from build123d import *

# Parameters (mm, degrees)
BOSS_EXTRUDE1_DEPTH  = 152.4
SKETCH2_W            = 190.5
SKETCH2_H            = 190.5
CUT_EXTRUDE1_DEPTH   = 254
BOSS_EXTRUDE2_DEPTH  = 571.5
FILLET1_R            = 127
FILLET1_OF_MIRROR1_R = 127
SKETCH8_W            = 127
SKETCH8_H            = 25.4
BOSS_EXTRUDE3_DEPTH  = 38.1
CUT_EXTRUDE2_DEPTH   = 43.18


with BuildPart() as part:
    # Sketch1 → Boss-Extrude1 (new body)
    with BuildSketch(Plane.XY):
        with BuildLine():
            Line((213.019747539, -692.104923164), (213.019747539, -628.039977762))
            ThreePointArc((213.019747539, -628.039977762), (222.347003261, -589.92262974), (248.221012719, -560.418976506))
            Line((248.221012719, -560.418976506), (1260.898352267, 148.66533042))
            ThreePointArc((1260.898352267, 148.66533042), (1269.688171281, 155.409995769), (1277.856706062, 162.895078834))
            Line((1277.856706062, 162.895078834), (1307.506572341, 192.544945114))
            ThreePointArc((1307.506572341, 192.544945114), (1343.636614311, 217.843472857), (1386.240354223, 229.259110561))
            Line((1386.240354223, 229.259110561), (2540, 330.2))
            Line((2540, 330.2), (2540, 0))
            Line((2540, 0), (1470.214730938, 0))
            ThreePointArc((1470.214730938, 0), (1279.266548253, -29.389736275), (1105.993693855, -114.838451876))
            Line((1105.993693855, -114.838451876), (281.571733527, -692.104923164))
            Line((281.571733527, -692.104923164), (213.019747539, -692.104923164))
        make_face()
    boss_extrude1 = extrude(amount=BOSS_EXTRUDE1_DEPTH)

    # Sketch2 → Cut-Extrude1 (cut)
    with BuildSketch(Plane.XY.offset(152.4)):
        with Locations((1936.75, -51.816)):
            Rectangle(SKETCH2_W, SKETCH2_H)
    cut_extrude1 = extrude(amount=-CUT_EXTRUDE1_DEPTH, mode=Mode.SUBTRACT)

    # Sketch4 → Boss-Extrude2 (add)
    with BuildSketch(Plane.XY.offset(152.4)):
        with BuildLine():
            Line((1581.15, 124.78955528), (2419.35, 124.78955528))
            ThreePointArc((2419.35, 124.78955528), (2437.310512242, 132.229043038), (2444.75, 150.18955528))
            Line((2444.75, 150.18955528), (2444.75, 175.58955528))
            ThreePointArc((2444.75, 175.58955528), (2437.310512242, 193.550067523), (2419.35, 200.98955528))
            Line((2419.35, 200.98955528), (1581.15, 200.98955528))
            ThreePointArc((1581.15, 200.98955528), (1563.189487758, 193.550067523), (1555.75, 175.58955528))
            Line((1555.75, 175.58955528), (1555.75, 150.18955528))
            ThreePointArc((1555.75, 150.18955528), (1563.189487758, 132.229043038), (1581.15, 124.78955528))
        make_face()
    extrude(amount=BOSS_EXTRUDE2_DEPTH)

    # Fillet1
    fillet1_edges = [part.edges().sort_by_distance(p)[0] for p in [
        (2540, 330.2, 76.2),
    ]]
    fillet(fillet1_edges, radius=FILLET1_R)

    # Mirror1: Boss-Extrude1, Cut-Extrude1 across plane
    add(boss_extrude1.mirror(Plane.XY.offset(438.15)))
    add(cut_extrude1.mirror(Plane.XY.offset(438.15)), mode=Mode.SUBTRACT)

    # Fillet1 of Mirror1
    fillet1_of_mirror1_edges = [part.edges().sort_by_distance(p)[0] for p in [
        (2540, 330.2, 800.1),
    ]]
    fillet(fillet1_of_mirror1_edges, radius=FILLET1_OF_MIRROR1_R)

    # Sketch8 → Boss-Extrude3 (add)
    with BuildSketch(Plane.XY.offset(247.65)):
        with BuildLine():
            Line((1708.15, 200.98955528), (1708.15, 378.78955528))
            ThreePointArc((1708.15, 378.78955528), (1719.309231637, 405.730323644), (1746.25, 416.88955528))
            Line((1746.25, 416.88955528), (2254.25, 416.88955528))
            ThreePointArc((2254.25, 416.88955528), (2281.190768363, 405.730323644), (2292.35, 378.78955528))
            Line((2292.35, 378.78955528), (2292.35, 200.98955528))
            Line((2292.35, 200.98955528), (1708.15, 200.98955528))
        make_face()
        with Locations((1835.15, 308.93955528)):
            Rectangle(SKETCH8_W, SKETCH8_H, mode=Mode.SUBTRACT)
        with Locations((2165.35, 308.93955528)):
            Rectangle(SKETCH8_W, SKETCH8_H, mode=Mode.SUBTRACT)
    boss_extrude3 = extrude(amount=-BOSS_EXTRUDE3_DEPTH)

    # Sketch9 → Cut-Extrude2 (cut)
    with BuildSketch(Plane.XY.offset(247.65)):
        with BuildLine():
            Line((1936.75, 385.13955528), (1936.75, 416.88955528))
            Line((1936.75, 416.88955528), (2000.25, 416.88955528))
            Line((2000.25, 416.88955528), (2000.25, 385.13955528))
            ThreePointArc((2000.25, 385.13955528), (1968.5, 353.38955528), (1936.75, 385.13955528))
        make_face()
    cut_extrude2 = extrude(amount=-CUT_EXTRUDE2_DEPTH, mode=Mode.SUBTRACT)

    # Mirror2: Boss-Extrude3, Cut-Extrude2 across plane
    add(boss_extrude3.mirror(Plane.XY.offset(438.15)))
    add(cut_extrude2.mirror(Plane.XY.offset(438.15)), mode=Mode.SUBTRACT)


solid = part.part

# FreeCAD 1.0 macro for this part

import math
import FreeCAD as App
import Part
import Sketcher

V = App.Vector
Q = App.Units.Quantity


def edges_at(feature, points):
    """Names of the edges that pass closest to the given points."""
    edges = feature.Shape.Edges
    near = lambda p: min(range(len(edges)), key=lambda i: edges[i].distToShape(Part.Vertex(*p))[0])
    return sorted({f"Edge{near(p) + 1}" for p in points})

doc = App.newDocument("Part")
body = doc.addObject("PartDesign::Body", "Body")

# Sketch on XY plane
sketch1 = doc.addObject("Sketcher::SketchObject", "Sketch")
body.addObject(sketch1)
sketch1.AttachmentSupport = (doc.XY_Plane, [""])
sketch1.MapMode = "FlatFace"
sketch1.addGeometry([
    Part.LineSegment(V(213, -628, 0), V(213, -692, 0)),  # 0
    Part.LineSegment(V(213, -692, 0), V(282, -692, 0)),  # 1
    Part.LineSegment(V(282, -692, 0), V(1106, -115, 0)),  # 2
    Part.ArcOfCircle(Part.Circle(V(1470, -635, 0), V(0, 0, 1), 635), math.radians(90), math.radians(125)),  # 3
    Part.LineSegment(V(1470, 0, 0), V(2540, 0, 0)),  # 4
    Part.LineSegment(V(2540, 0, 0), V(2540, 330, 0)),  # 5
    Part.LineSegment(V(2540, 330, 0), V(1386, 229, 0)),  # 6
    Part.ArcOfCircle(Part.Circle(V(1397, 103, 0), V(0, 0, 1), 127), math.radians(95), math.radians(135)),  # 7
    Part.LineSegment(V(1308, 193, 0), V(1278, 163, 0)),  # 8
    Part.ArcOfCircle(Part.Circle(V(1188, 253, 0), V(0, 0, 1), 127), math.radians(-55), math.radians(-45)),  # 9
    Part.LineSegment(V(1261, 149, 0), V(248, -560, 0)),  # 10
    Part.ArcOfCircle(Part.Circle(V(296, -628, 0), V(0, 0, 1), 83), math.radians(125), math.radians(180)),  # 11
], False)
sketch1.addConstraint([
    Sketcher.Constraint("Coincident", 0, 2, 1, 1),
    Sketcher.Constraint("Coincident", 1, 2, 2, 1),
    Sketcher.Constraint("Tangent", 2, 2, 3, 2),
    Sketcher.Constraint("Tangent", 3, 1, 4, 1),
    Sketcher.Constraint("Coincident", 4, 2, 5, 1),
    Sketcher.Constraint("Coincident", 5, 2, 6, 1),
    Sketcher.Constraint("Tangent", 6, 2, 7, 1),
    Sketcher.Constraint("Tangent", 7, 2, 8, 1),
    Sketcher.Constraint("Tangent", 8, 2, 9, 2),
    Sketcher.Constraint("Tangent", 9, 1, 10, 1),
    Sketcher.Constraint("Tangent", 10, 2, 11, 1),
    Sketcher.Constraint("Tangent", 11, 2, 0, 1),
    Sketcher.Constraint("Vertical", 0),
    Sketcher.Constraint("Horizontal", 1),
    Sketcher.Constraint("Horizontal", 4),
    Sketcher.Constraint("Vertical", 5),
    Sketcher.Constraint("Equal", 7, 9),
    Sketcher.Constraint("PointOnObject", 3, 1, -1),
    Sketcher.Constraint("Parallel", 2, 10),
    Sketcher.Constraint("Radius", 3, Q("25 in")),
    Sketcher.Constraint("Radius", 7, Q("5 in")),
    Sketcher.Constraint("DistanceY", 5, 1, 5, 2, Q("13 in")),
    Sketcher.Constraint("Radius", 11, Q("3.25 in")),
    Sketcher.Constraint("DistanceX", -1, 1, 4, 2, Q("100 in")),
    Sketcher.Constraint("Angle", 2, Q("35 deg")),
    Sketcher.Constraint("Angle", 6, Q("-175 deg")),
    Sketcher.Constraint("Angle", 8, Q("-135 deg")),
    Sketcher.Constraint("DistanceX", 4, 1, 4, 2, Q("1069.785269 mm")),
    Sketcher.Constraint("DistanceX", 1, 2, 7, 3, Q("1115.7374 mm")),
    Sketcher.Constraint("DistanceX", 9, 1, 6, 2, Q("125.342002 mm")),
    Sketcher.Constraint("Distance", 2, Q("1006.43338 mm")),
    Sketcher.Constraint("DistanceX", 1, 1, 1, 2, Q("68.551986 mm")),
])
pad1 = doc.addObject("PartDesign::Pad", "Pad")
body.addObject(pad1)
pad1.Profile = sketch1
pad1.Length = Q("6 in")

# Sketch on XY plane
sketch2 = doc.addObject("Sketcher::SketchObject", "Sketch001")
body.addObject(sketch2)
sketch2.AttachmentSupport = (doc.XY_Plane, [""])
sketch2.MapMode = "FlatFace"
sketch2.AttachmentOffset = App.Placement(V(0, 0, 6 * 25.4), App.Rotation())
sketch2.addGeometry([
    Part.LineSegment(V(1842, 43, 0), V(1842, -147, 0)),
    Part.LineSegment(V(1842, -147, 0), V(2032, -147, 0)),
    Part.LineSegment(V(2032, -147, 0), V(2032, 43, 0)),
    Part.LineSegment(V(2032, 43, 0), V(1842, 43, 0)),
], False)
sketch2.addConstraint([
    Sketcher.Constraint("Coincident", 0, 2, 1, 1),
    Sketcher.Constraint("Coincident", 1, 2, 2, 1),
    Sketcher.Constraint("Coincident", 2, 2, 3, 1),
    Sketcher.Constraint("Coincident", 3, 2, 0, 1),
    Sketcher.Constraint("Vertical", 0),
    Sketcher.Constraint("Horizontal", 1),
    Sketcher.Constraint("Vertical", 2),
    Sketcher.Constraint("Horizontal", 3),
    Sketcher.Constraint("Equal", 3, 0),
    Sketcher.Constraint("DistanceX", 1, 1, 1, 2, Q("7.5 in")),
    Sketcher.Constraint("DistanceX", -1, 1, 1, 2, Q("80 in")),
    Sketcher.Constraint("DistanceY", 0, 2, -1, 1, Q("5.79 in")),
])
pocket1 = doc.addObject("PartDesign::Pocket", "Pocket")
body.addObject(pocket1)
pocket1.Profile = sketch2
pocket1.Length = Q("10 in")

# Sketch on XY plane
sketch3 = doc.addObject("Sketcher::SketchObject", "Sketch002")
body.addObject(sketch3)
sketch3.AttachmentSupport = (doc.XY_Plane, [""])
sketch3.MapMode = "FlatFace"
sketch3.AttachmentOffset = App.Placement(V(0, 0, 6 * 25.4), App.Rotation())
sketch3.addGeometry([
    Part.LineSegment(V(1581, 125, 0), V(2419, 125, 0)),  # 0
    Part.ArcOfCircle(Part.Circle(V(2419, 150, 0), V(0, 0, 1), 25), math.radians(-90), math.radians(0)),  # 1
    Part.LineSegment(V(2445, 150, 0), V(2445, 176, 0)),  # 2
    Part.ArcOfCircle(Part.Circle(V(2419, 176, 0), V(0, 0, 1), 25), math.radians(0), math.radians(90)),  # 3
    Part.LineSegment(V(2419, 201, 0), V(1581, 201, 0)),  # 4
    Part.ArcOfCircle(Part.Circle(V(1581, 176, 0), V(0, 0, 1), 25), math.radians(90), math.radians(180)),  # 5
    Part.LineSegment(V(1556, 176, 0), V(1556, 150, 0)),  # 6
    Part.ArcOfCircle(Part.Circle(V(1581, 150, 0), V(0, 0, 1), 25), math.radians(180), math.radians(270)),  # 7
], False)
sketch3.addConstraint([
    Sketcher.Constraint("Tangent", 0, 2, 1, 1),
    Sketcher.Constraint("Tangent", 1, 2, 2, 1),
    Sketcher.Constraint("Tangent", 2, 2, 3, 1),
    Sketcher.Constraint("Tangent", 3, 2, 4, 1),
    Sketcher.Constraint("Tangent", 4, 2, 5, 1),
    Sketcher.Constraint("Tangent", 5, 2, 6, 1),
    Sketcher.Constraint("Tangent", 6, 2, 7, 1),
    Sketcher.Constraint("Tangent", 7, 2, 0, 1),
    Sketcher.Constraint("Horizontal", 0),
    Sketcher.Constraint("Vertical", 2),
    Sketcher.Constraint("Horizontal", 4),
    Sketcher.Constraint("Vertical", 6),
    Sketcher.Constraint("Equal", 1, 3),
    Sketcher.Constraint("Equal", 3, 5),
    Sketcher.Constraint("Equal", 5, 7),
    Sketcher.Constraint("Radius", 1, Q("1 in")),
    Sketcher.Constraint("DistanceX", 0, 1, 0, 2, Q("33 in")),
    Sketcher.Constraint("DistanceY", 2, 1, 2, 2, Q("1 in")),
    Sketcher.Constraint("DistanceX", -1, 1, 1, 3, Q("95.25 in")),
    Sketcher.Constraint("DistanceY", -1, 1, 1, 3, Q("150.189555 mm")),
])
pad2 = doc.addObject("PartDesign::Pad", "Pad001")
body.addObject(pad2)
pad2.Profile = sketch3
pad2.Length = Q("22.5 in")
doc.recompute()

fillet = doc.addObject("PartDesign::Fillet", "Fillet")
body.addObject(fillet)
fillet.Base = (pad2, edges_at(pad2, [(2540, 330.2, 76.2)]))
fillet.Radius = Q("5 in")
doc.recompute()

datumplane = doc.addObject("PartDesign::Plane", "DatumPlane")
body.addObject(datumplane)
datumplane.AttachmentSupport = (doc.XY_Plane, [""])
datumplane.MapMode = "FlatFace"
datumplane.AttachmentOffset = App.Placement(V(0, 0, 17.25 * 25.4), App.Rotation())
mirrored = doc.addObject("PartDesign::Mirrored", "Mirrored")
body.addObject(mirrored)
mirrored.Originals = [pad1, pocket1]
mirrored.MirrorPlane = (datumplane, [""])
body.Tip = mirrored
doc.recompute()

fillet2 = doc.addObject("PartDesign::Fillet", "Fillet001")
body.addObject(fillet2)
fillet2.Base = (mirrored, edges_at(mirrored, [(2540, 330.2, 800.1)]))
fillet2.Radius = Q("5 in")

# Sketch on XY plane
sketch4 = doc.addObject("Sketcher::SketchObject", "Sketch003")
body.addObject(sketch4)
sketch4.AttachmentSupport = (doc.XY_Plane, [""])
sketch4.MapMode = "FlatFace"
sketch4.AttachmentOffset = App.Placement(V(0, 0, 9.75 * 25.4), App.Rotation())
sketch4.addGeometry([
    Part.LineSegment(V(1708, 379, 0), V(1708, 201, 0)),  # 0
    Part.LineSegment(V(1708, 201, 0), V(2292, 201, 0)),  # 1
    Part.LineSegment(V(2292, 201, 0), V(2292, 379, 0)),  # 2
    Part.ArcOfCircle(Part.Circle(V(2254, 379, 0), V(0, 0, 1), 38), math.radians(0), math.radians(90)),  # 3
    Part.LineSegment(V(2254, 417, 0), V(1746, 417, 0)),  # 4
    Part.ArcOfCircle(Part.Circle(V(1746, 379, 0), V(0, 0, 1), 38), math.radians(90), math.radians(180)),  # 5
    Part.LineSegment(V(2102, 296, 0), V(2102, 322, 0)),  # 6
    Part.LineSegment(V(2102, 322, 0), V(2229, 322, 0)),  # 7
    Part.LineSegment(V(2229, 322, 0), V(2229, 296, 0)),  # 8
    Part.LineSegment(V(2229, 296, 0), V(2102, 296, 0)),  # 9
    Part.LineSegment(V(1772, 296, 0), V(1772, 322, 0)),  # 10
    Part.LineSegment(V(1772, 322, 0), V(1899, 322, 0)),  # 11
    Part.LineSegment(V(1899, 322, 0), V(1899, 296, 0)),  # 12
    Part.LineSegment(V(1899, 296, 0), V(1772, 296, 0)),  # 13
], False)
sketch4.addConstraint([
    Sketcher.Constraint("Coincident", 0, 2, 1, 1),
    Sketcher.Constraint("Coincident", 1, 2, 2, 1),
    Sketcher.Constraint("Tangent", 2, 2, 3, 1),
    Sketcher.Constraint("Tangent", 3, 2, 4, 1),
    Sketcher.Constraint("Tangent", 4, 2, 5, 1),
    Sketcher.Constraint("Tangent", 5, 2, 0, 1),
    Sketcher.Constraint("Coincident", 6, 2, 7, 1),
    Sketcher.Constraint("Coincident", 7, 2, 8, 1),
    Sketcher.Constraint("Coincident", 8, 2, 9, 1),
    Sketcher.Constraint("Coincident", 9, 2, 6, 1),
    Sketcher.Constraint("Coincident", 10, 2, 11, 1),
    Sketcher.Constraint("Coincident", 11, 2, 12, 1),
    Sketcher.Constraint("Coincident", 12, 2, 13, 1),
    Sketcher.Constraint("Coincident", 13, 2, 10, 1),
    Sketcher.Constraint("Vertical", 0),
    Sketcher.Constraint("Horizontal", 1),
    Sketcher.Constraint("Vertical", 2),
    Sketcher.Constraint("Horizontal", 4),
    Sketcher.Constraint("Vertical", 6),
    Sketcher.Constraint("Horizontal", 7),
    Sketcher.Constraint("Vertical", 8),
    Sketcher.Constraint("Horizontal", 9),
    Sketcher.Constraint("Vertical", 10),
    Sketcher.Constraint("Horizontal", 11),
    Sketcher.Constraint("Vertical", 12),
    Sketcher.Constraint("Horizontal", 13),
    Sketcher.Constraint("Equal", 3, 5),
    Sketcher.Constraint("Horizontal", 7, 2, 10, 2),
    Sketcher.Constraint("Horizontal", 9, 2, 12, 2),
    Sketcher.Constraint("Equal", 9, 11),
    Sketcher.Constraint("Radius", 3, Q("1.5 in")),
    Sketcher.Constraint("DistanceX", 1, 1, 1, 2, Q("23 in")),
    Sketcher.Constraint("DistanceX", 7, 1, 7, 2, Q("5 in")),
    Sketcher.Constraint("DistanceY", 0, 2, 0, 1, Q("7 in")),
    Sketcher.Constraint("DistanceY", 6, 1, 6, 2, Q("1 in")),
    Sketcher.Constraint("DistanceX", 6, 2, 3, 3, Q("6 in")),
    Sketcher.Constraint("DistanceX", 5, 3, 10, 2, Q("1 in")),
    Sketcher.Constraint("DistanceX", -1, 1, 3, 3, Q("88.75 in")),
    Sketcher.Constraint("DistanceY", 6, 2, 3, 3, Q("2.25 in")),
    Sketcher.Constraint("DistanceY", -1, 1, 3, 3, Q("378.789555 mm")),
])
pad3 = doc.addObject("PartDesign::Pad", "Pad002")
body.addObject(pad3)
pad3.Profile = sketch4
pad3.Length = Q("1.5 in")
pad3.Reversed = True

# Sketch on XY plane
sketch5 = doc.addObject("Sketcher::SketchObject", "Sketch004")
body.addObject(sketch5)
sketch5.AttachmentSupport = (doc.XY_Plane, [""])
sketch5.MapMode = "FlatFace"
sketch5.AttachmentOffset = App.Placement(V(0, 0, 9.75 * 25.4), App.Rotation())
sketch5.addGeometry([
    Part.LineSegment(V(1937, 417, 0), V(1937, 385, 0)),
    Part.ArcOfCircle(Part.Circle(V(1968, 385, 0), V(0, 0, 1), 32), math.radians(180), math.radians(360)),
    Part.LineSegment(V(2000, 385, 0), V(2000, 417, 0)),
    Part.LineSegment(V(2000, 417, 0), V(1937, 417, 0)),
], False)
sketch5.addConstraint([
    Sketcher.Constraint("Tangent", 0, 2, 1, 1),
    Sketcher.Constraint("Tangent", 1, 2, 2, 1),
    Sketcher.Constraint("Coincident", 2, 2, 3, 1),
    Sketcher.Constraint("Coincident", 3, 2, 0, 1),
    Sketcher.Constraint("Vertical", 0),
    Sketcher.Constraint("Vertical", 2),
    Sketcher.Constraint("Horizontal", 3),
    Sketcher.Constraint("Radius", 1, Q("1.25 in")),
    Sketcher.Constraint("DistanceY", 0, 2, 0, 1, Q("1.25 in")),
    Sketcher.Constraint("DistanceX", -1, 1, 1, 3, Q("77.5 in")),
    Sketcher.Constraint("DistanceY", -1, 1, 1, 3, Q("385.139555 mm")),
])
pocket2 = doc.addObject("PartDesign::Pocket", "Pocket001")
body.addObject(pocket2)
pocket2.Profile = sketch5
pocket2.Length = Q("1.7 in")
doc.recompute()

datumplane2 = doc.addObject("PartDesign::Plane", "DatumPlane001")
body.addObject(datumplane2)
datumplane2.AttachmentSupport = (doc.XY_Plane, [""])
datumplane2.MapMode = "FlatFace"
datumplane2.AttachmentOffset = App.Placement(V(0, 0, 17.25 * 25.4), App.Rotation())
mirrored2 = doc.addObject("PartDesign::Mirrored", "Mirrored001")
body.addObject(mirrored2)
mirrored2.Originals = [pad3, pocket2]
mirrored2.MirrorPlane = (datumplane2, [""])
body.Tip = mirrored2

doc.recompute()
